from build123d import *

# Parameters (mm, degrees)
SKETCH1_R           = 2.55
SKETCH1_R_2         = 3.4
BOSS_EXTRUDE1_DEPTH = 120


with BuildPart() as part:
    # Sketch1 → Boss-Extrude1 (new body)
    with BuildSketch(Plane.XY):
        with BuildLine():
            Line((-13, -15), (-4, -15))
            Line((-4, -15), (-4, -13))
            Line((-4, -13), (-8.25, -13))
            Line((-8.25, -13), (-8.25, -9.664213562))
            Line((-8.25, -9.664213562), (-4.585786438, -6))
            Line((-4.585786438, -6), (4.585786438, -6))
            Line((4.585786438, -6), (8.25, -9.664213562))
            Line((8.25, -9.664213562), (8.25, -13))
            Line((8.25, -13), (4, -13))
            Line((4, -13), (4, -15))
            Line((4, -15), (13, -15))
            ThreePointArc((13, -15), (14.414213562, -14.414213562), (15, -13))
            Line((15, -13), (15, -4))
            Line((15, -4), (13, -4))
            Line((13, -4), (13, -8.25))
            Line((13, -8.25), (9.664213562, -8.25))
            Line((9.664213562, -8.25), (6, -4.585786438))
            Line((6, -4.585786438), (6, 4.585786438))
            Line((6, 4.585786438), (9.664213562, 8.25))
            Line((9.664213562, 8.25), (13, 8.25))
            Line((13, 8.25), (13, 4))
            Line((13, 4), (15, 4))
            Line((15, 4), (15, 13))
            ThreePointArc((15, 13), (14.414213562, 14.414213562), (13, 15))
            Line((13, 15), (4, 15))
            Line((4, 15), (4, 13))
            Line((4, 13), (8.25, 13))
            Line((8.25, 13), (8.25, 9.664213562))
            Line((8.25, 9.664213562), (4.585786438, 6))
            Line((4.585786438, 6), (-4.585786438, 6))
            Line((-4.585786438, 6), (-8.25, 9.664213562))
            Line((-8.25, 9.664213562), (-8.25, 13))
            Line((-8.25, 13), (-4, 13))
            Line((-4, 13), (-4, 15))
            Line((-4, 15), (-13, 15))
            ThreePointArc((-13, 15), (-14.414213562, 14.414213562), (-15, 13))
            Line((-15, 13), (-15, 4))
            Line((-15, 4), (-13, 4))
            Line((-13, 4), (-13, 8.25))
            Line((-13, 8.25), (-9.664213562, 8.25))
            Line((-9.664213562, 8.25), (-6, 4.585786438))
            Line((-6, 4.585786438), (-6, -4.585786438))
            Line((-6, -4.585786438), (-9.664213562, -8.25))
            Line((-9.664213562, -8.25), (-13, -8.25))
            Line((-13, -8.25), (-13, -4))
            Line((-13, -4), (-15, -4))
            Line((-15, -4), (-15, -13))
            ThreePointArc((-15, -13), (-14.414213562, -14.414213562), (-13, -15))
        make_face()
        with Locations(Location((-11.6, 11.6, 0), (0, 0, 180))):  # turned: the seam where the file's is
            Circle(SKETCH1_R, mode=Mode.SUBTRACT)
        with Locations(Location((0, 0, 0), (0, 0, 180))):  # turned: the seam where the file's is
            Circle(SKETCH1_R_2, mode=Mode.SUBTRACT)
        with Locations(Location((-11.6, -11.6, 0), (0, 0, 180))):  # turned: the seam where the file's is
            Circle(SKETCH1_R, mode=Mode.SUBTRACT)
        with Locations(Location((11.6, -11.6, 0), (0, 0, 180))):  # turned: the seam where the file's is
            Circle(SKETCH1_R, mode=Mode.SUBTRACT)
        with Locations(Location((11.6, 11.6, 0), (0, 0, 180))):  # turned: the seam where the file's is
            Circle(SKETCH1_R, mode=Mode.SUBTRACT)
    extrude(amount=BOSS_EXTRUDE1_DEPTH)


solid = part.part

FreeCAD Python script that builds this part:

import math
import FreeCAD as App
import Part
import Sketcher

doc = App.newDocument("Part")
body = doc.addObject("PartDesign::Body", "Body")

sketch1 = doc.addObject("Sketcher::SketchObject", "Sketch")
body.addObject(sketch1)
sketch1.AttachmentSupport = (doc.XY_Plane, [""])
sketch1.MapMode = "FlatFace"
sketch1.addGeometry(Part.LineSegment(App.Vector(-13, -15, 0), App.Vector(-4, -15, 0)), False)
sketch1.addGeometry(Part.LineSegment(App.Vector(-4, -15, 0), App.Vector(-4, -13, 0)), False)
sketch1.addGeometry(Part.LineSegment(App.Vector(-4, -13, 0), App.Vector(-8.2, -13, 0)), False)
sketch1.addGeometry(Part.LineSegment(App.Vector(-8.2, -13, 0), App.Vector(-8.2, -9.7, 0)), False)
sketch1.addGeometry(Part.LineSegment(App.Vector(-8.2, -9.7, 0), App.Vector(-4.6, -6, 0)), False)
sketch1.addGeometry(Part.LineSegment(App.Vector(-4.6, -6, 0), App.Vector(4.6, -6, 0)), False)
sketch1.addGeometry(Part.LineSegment(App.Vector(4.6, -6, 0), App.Vector(8.2, -9.7, 0)), False)
sketch1.addGeometry(Part.LineSegment(App.Vector(8.2, -9.7, 0), App.Vector(8.2, -13, 0)), False)
sketch1.addGeometry(Part.LineSegment(App.Vector(8.2, -13, 0), App.Vector(4, -13, 0)), False)
sketch1.addGeometry(Part.LineSegment(App.Vector(4, -13, 0), App.Vector(4, -15, 0)), False)
sketch1.addGeometry(Part.LineSegment(App.Vector(4, -15, 0), App.Vector(13, -15, 0)), False)
sketch1.addGeometry(Part.ArcOfCircle(Part.Circle(App.Vector(13, -13, 0), App.Vector(0, 0, 1), 2), math.radians(-90), math.radians(0)), False)
sketch1.addGeometry(Part.LineSegment(App.Vector(15, -13, 0), App.Vector(15, -4, 0)), False)
sketch1.addGeometry(Part.LineSegment(App.Vector(15, -4, 0), App.Vector(13, -4, 0)), False)
sketch1.addGeometry(Part.LineSegment(App.Vector(13, -4, 0), App.Vector(13, -8.2, 0)), False)
sketch1.addGeometry(Part.LineSegment(App.Vector(13, -8.2, 0), App.Vector(9.7, -8.2, 0)), False)
sketch1.addGeometry(Part.LineSegment(App.Vector(9.7, -8.2, 0), App.Vector(6, -4.6, 0)), False)
sketch1.addGeometry(Part.LineSegment(App.Vector(6, -4.6, 0), App.Vector(6, 4.6, 0)), False)
sketch1.addGeometry(Part.LineSegment(App.Vector(6, 4.6, 0), App.Vector(9.7, 8.2, 0)), False)
sketch1.addGeometry(Part.LineSegment(App.Vector(9.7, 8.2, 0), App.Vector(13, 8.2, 0)), False)
sketch1.addGeometry(Part.LineSegment(App.Vector(13, 8.2, 0), App.Vector(13, 4, 0)), False)
sketch1.addGeometry(Part.LineSegment(App.Vector(13, 4, 0), App.Vector(15, 4, 0)), False)
sketch1.addGeometry(Part.LineSegment(App.Vector(15, 4, 0), App.Vector(15, 13, 0)), False)
sketch1.addGeometry(Part.ArcOfCircle(Part.Circle(App.Vector(13, 13, 0), App.Vector(0, 0, 1), 2), math.radians(0), math.radians(90)), False)
sketch1.addGeometry(Part.LineSegment(App.Vector(13, 15, 0), App.Vector(4, 15, 0)), False)
sketch1.addGeometry(Part.LineSegment(App.Vector(4, 15, 0), App.Vector(4, 13, 0)), False)
sketch1.addGeometry(Part.LineSegment(App.Vector(4, 13, 0), App.Vector(8.2, 13, 0)), False)
sketch1.addGeometry(Part.LineSegment(App.Vector(8.2, 13, 0), App.Vector(8.2, 9.7, 0)), False)
sketch1.addGeometry(Part.LineSegment(App.Vector(8.2, 9.7, 0), App.Vector(4.6, 6, 0)), False)
sketch1.addGeometry(Part.LineSegment(App.Vector(4.6, 6, 0), App.Vector(-4.6, 6, 0)), False)
sketch1.addGeometry(Part.LineSegment(App.Vector(-4.6, 6, 0), App.Vector(-8.2, 9.7, 0)), False)
sketch1.addGeometry(Part.LineSegment(App.Vector(-8.2, 9.7, 0), App.Vector(-8.2, 13, 0)), False)
sketch1.addGeometry(Part.LineSegment(App.Vector(-8.2, 13, 0), App.Vector(-4, 13, 0)), False)
sketch1.addGeometry(Part.LineSegment(App.Vector(-4, 13, 0), App.Vector(-4, 15, 0)), False)
sketch1.addGeometry(Part.LineSegment(App.Vector(-4, 15, 0), App.Vector(-13, 15, 0)), False)
sketch1.addGeometry(Part.ArcOfCircle(Part.Circle(App.Vector(-13, 13, 0), App.Vector(0, 0, 1), 2), math.radians(90), math.radians(180)), False)
sketch1.addGeometry(Part.LineSegment(App.Vector(-15, 13, 0), App.Vector(-15, 4, 0)), False)
sketch1.addGeometry(Part.LineSegment(App.Vector(-15, 4, 0), App.Vector(-13, 4, 0)), False)
sketch1.addGeometry(Part.LineSegment(App.Vector(-13, 4, 0), App.Vector(-13, 8.2, 0)), False)
sketch1.addGeometry(Part.LineSegment(App.Vector(-13, 8.2, 0), App.Vector(-9.7, 8.2, 0)), False)
sketch1.addGeometry(Part.LineSegment(App.Vector(-9.7, 8.2, 0), App.Vector(-6, 4.6, 0)), False)
sketch1.addGeometry(Part.LineSegment(App.Vector(-6, 4.6, 0), App.Vector(-6, -4.6, 0)), False)
sketch1.addGeometry(Part.LineSegment(App.Vector(-6, -4.6, 0), App.Vector(-9.7, -8.2, 0)), False)
sketch1.addGeometry(Part.LineSegment(App.Vector(-9.7, -8.2, 0), App.Vector(-13, -8.2, 0)), False)
sketch1.addGeometry(Part.LineSegment(App.Vector(-13, -8.2, 0), App.Vector(-13, -4, 0)), False)
sketch1.addGeometry(Part.LineSegment(App.Vector(-13, -4, 0), App.Vector(-15, -4, 0)), False)
sketch1.addGeometry(Part.LineSegment(App.Vector(-15, -4, 0), App.Vector(-15, -13, 0)), False)
sketch1.addGeometry(Part.ArcOfCircle(Part.Circle(App.Vector(-13, -13, 0), App.Vector(0, 0, 1), 2), math.radians(-180), math.radians(-90)), False)
sketch1.addGeometry(Part.Circle(App.Vector(-11.6, -11.6, 0), App.Vector(0, 0, 1), 2.5), False)
sketch1.addGeometry(Part.Circle(App.Vector(0, 0, 0), App.Vector(0, 0, 1), 3.4), False)
sketch1.addGeometry(Part.Circle(App.Vector(11.6, -11.6, 0), App.Vector(0, 0, 1), 2.5), False)
sketch1.addGeometry(Part.Circle(App.Vector(-11.6, 11.6, 0), App.Vector(0, 0, 1), 2.5), False)
sketch1.addGeometry(Part.Circle(App.Vector(11.6, 11.6, 0), App.Vector(0, 0, 1), 2.5), False)
sketch1.addConstraint(Sketcher.Constraint("Coincident", 0, 2, 1, 1))
sketch1.addConstraint(Sketcher.Constraint("Coincident", 1, 2, 2, 1))
sketch1.addConstraint(Sketcher.Constraint("Coincident", 2, 2, 3, 1))
sketch1.addConstraint(Sketcher.Constraint("Coincident", 3, 2, 4, 1))
sketch1.addConstraint(Sketcher.Constraint("Coincident", 4, 2, 5, 1))
sketch1.addConstraint(Sketcher.Constraint("Coincident", 5, 2, 6, 1))
sketch1.addConstraint(Sketcher.Constraint("Coincident", 6, 2, 7, 1))
sketch1.addConstraint(Sketcher.Constraint("Coincident", 7, 2, 8, 1))
sketch1.addConstraint(Sketcher.Constraint("Coincident", 8, 2, 9, 1))
sketch1.addConstraint(Sketcher.Constraint("Coincident", 9, 2, 10, 1))
sketch1.addConstraint(Sketcher.Constraint("Tangent", 10, 2, 11, 1))
sketch1.addConstraint(Sketcher.Constraint("Tangent", 11, 2, 12, 1))
sketch1.addConstraint(Sketcher.Constraint("Coincident", 12, 2, 13, 1))
sketch1.addConstraint(Sketcher.Constraint("Coincident", 13, 2, 14, 1))
sketch1.addConstraint(Sketcher.Constraint("Coincident", 14, 2, 15, 1))
sketch1.addConstraint(Sketcher.Constraint("Coincident", 15, 2, 16, 1))
sketch1.addConstraint(Sketcher.Constraint("Coincident", 16, 2, 17, 1))
sketch1.addConstraint(Sketcher.Constraint("Coincident", 17, 2, 18, 1))
sketch1.addConstraint(Sketcher.Constraint("Coincident", 18, 2, 19, 1))
sketch1.addConstraint(Sketcher.Constraint("Coincident", 19, 2, 20, 1))
sketch1.addConstraint(Sketcher.Constraint("Coincident", 20, 2, 21, 1))
sketch1.addConstraint(Sketcher.Constraint("Coincident", 21, 2, 22, 1))
sketch1.addConstraint(Sketcher.Constraint("Tangent", 22, 2, 23, 1))
sketch1.addConstraint(Sketcher.Constraint("Tangent", 23, 2, 24, 1))
sketch1.addConstraint(Sketcher.Constraint("Coincident", 24, 2, 25, 1))
sketch1.addConstraint(Sketcher.Constraint("Coincident", 25, 2, 26, 1))
sketch1.addConstraint(Sketcher.Constraint("Coincident", 26, 2, 27, 1))
sketch1.addConstraint(Sketcher.Constraint("Coincident", 27, 2, 28, 1))
sketch1.addConstraint(Sketcher.Constraint("Coincident", 28, 2, 29, 1))
sketch1.addConstraint(Sketcher.Constraint("Coincident", 29, 2, 30, 1))
sketch1.addConstraint(Sketcher.Constraint("Coincident", 30, 2, 31, 1))
sketch1.addConstraint(Sketcher.Constraint("Coincident", 31, 2, 32, 1))
sketch1.addConstraint(Sketcher.Constraint("Coincident", 32, 2, 33, 1))
sketch1.addConstraint(Sketcher.Constraint("Coincident", 33, 2, 34, 1))
sketch1.addConstraint(Sketcher.Constraint("Tangent", 34, 2, 35, 1))
sketch1.addConstraint(Sketcher.Constraint("Tangent", 35, 2, 36, 1))
sketch1.addConstraint(Sketcher.Constraint("Coincident", 36, 2, 37, 1))
sketch1.addConstraint(Sketcher.Constraint("Coincident", 37, 2, 38, 1))
sketch1.addConstraint(Sketcher.Constraint("Coincident", 38, 2, 39, 1))
sketch1.addConstraint(Sketcher.Constraint("Coincident", 39, 2, 40, 1))
sketch1.addConstraint(Sketcher.Constraint("Coincident", 40, 2, 41, 1))
sketch1.addConstraint(Sketcher.Constraint("Coincident", 41, 2, 42, 1))
sketch1.addConstraint(Sketcher.Constraint("Coincident", 42, 2, 43, 1))
sketch1.addConstraint(Sketcher.Constraint("Coincident", 43, 2, 44, 1))
sketch1.addConstraint(Sketcher.Constraint("Coincident", 44, 2, 45, 1))
sketch1.addConstraint(Sketcher.Constraint("Coincident", 45, 2, 46, 1))
sketch1.addConstraint(Sketcher.Constraint("Tangent", 46, 2, 47, 1))
sketch1.addConstraint(Sketcher.Constraint("Tangent", 47, 2, 0, 1))
sketch1.addConstraint(Sketcher.Constraint("Horizontal", 0))
sketch1.addConstraint(Sketcher.Constraint("Vertical", 1))
sketch1.addConstraint(Sketcher.Constraint("Horizontal", 2))
sketch1.addConstraint(Sketcher.Constraint("Vertical", 3))
sketch1.addConstraint(Sketcher.Constraint("Horizontal", 5))
sketch1.addConstraint(Sketcher.Constraint("Vertical", 7))
sketch1.addConstraint(Sketcher.Constraint("Horizontal", 8))
sketch1.addConstraint(Sketcher.Constraint("Vertical", 9))
sketch1.addConstraint(Sketcher.Constraint("Horizontal", 10))
sketch1.addConstraint(Sketcher.Constraint("Vertical", 12))
sketch1.addConstraint(Sketcher.Constraint("Horizontal", 13))
sketch1.addConstraint(Sketcher.Constraint("Vertical", 14))
sketch1.addConstraint(Sketcher.Constraint("Horizontal", 15))
sketch1.addConstraint(Sketcher.Constraint("Vertical", 17))
sketch1.addConstraint(Sketcher.Constraint("Horizontal", 19))
sketch1.addConstraint(Sketcher.Constraint("Vertical", 20))
sketch1.addConstraint(Sketcher.Constraint("Horizontal", 21))
sketch1.addConstraint(Sketcher.Constraint("Vertical", 22))
sketch1.addConstraint(Sketcher.Constraint("Horizontal", 24))
sketch1.addConstraint(Sketcher.Constraint("Vertical", 25))
sketch1.addConstraint(Sketcher.Constraint("Horizontal", 26))
sketch1.addConstraint(Sketcher.Constraint("Vertical", 27))
sketch1.addConstraint(Sketcher.Constraint("Horizontal", 29))
sketch1.addConstraint(Sketcher.Constraint("Vertical", 31))
sketch1.addConstraint(Sketcher.Constraint("Horizontal", 32))
sketch1.addConstraint(Sketcher.Constraint("Vertical", 33))
sketch1.addConstraint(Sketcher.Constraint("Horizontal", 34))
sketch1.addConstraint(Sketcher.Constraint("Vertical", 36))
sketch1.addConstraint(Sketcher.Constraint("Horizontal", 37))
sketch1.addConstraint(Sketcher.Constraint("Vertical", 38))
sketch1.addConstraint(Sketcher.Constraint("Horizontal", 39))
sketch1.addConstraint(Sketcher.Constraint("Vertical", 41))
sketch1.addConstraint(Sketcher.Constraint("Horizontal", 43))
sketch1.addConstraint(Sketcher.Constraint("Vertical", 44))
sketch1.addConstraint(Sketcher.Constraint("Horizontal", 45))
sketch1.addConstraint(Sketcher.Constraint("Vertical", 46))
sketch1.addConstraint(Sketcher.Constraint("Coincident", 49, 3, -1, 1))
sketch1.addConstraint(Sketcher.Constraint("Equal", 11, 23))
sketch1.addConstraint(Sketcher.Constraint("Equal", 23, 35))
sketch1.addConstraint(Sketcher.Constraint("Equal", 35, 47))
sketch1.addConstraint(Sketcher.Constraint("Equal", 48, 50))
sketch1.addConstraint(Sketcher.Constraint("Equal", 50, 51))
sketch1.addConstraint(Sketcher.Constraint("Equal", 51, 52))
sketch1.addConstraint(Sketcher.Constraint("Symmetric", 11, 3, 35, 3, -1, 1))
sketch1.addConstraint(Sketcher.Constraint("Symmetric", 23, 3, 47, 3, -1, 1))
sketch1.addConstraint(Sketcher.Constraint("Symmetric", 50, 3, 51, 3, -1, 1))
sketch1.addConstraint(Sketcher.Constraint("Symmetric", 48, 3, 52, 3, -1, 1))
sketch1.addConstraint(Sketcher.Constraint("Symmetric", 1, 2, 25, 2, -1, 1))
sketch1.addConstraint(Sketcher.Constraint("Symmetric", 3, 2, 27, 2, -1, 1))
sketch1.addConstraint(Sketcher.Constraint("Symmetric", 4, 2, 28, 2, -1, 1))
sketch1.addConstraint(Sketcher.Constraint("Symmetric", 6, 2, 30, 2, -1, 1))
sketch1.addConstraint(Sketcher.Constraint("Symmetric", 8, 2, 32, 2, -1, 1))
sketch1.addConstraint(Sketcher.Constraint("Symmetric", 13, 2, 37, 2, -1, 1))
sketch1.addConstraint(Sketcher.Constraint("Symmetric", 15, 2, 39, 2, -1, 1))
sketch1.addConstraint(Sketcher.Constraint("Symmetric", 16, 2, 40, 2, -1, 1))
sketch1.addConstraint(Sketcher.Constraint("Symmetric", 18, 2, 42, 2, -1, 1))
sketch1.addConstraint(Sketcher.Constraint("Symmetric", 20, 2, 44, 2, -1, 1))
sketch1.addConstraint(Sketcher.Constraint("Symmetric", 23, 3, 35, 3, -2))
sketch1.addConstraint(Sketcher.Constraint("Symmetric", 48, 3, 50, 3, -2))
sketch1.addConstraint(Sketcher.Constraint("Symmetric", 3, 2, 6, 2, -2))
sketch1.addConstraint(Sketcher.Constraint("Symmetric", 1, 2, 8, 2, -2))
sketch1.addConstraint(Sketcher.Constraint("Symmetric", 20, 2, 37, 2, -2))
sketch1.addConstraint(Sketcher.Constraint("Symmetric", 18, 2, 39, 2, -2))
sketch1.addConstraint(Sketcher.Constraint("Perpendicular", 4, 6))
sketch1.addConstraint(Sketcher.Constraint("Parallel", 6, 16))
sketch1.addConstraint(Sketcher.Constraint("Perpendicular", 16, 18))
sketch1.addConstraint(Sketcher.Constraint("Perpendicular", 28, 30))
sketch1.addConstraint(Sketcher.Constraint("Perpendicular", 40, 42))
sketch1.addConstraint(Sketcher.Constraint("Horizontal", 47, 3, 1, 2))
sketch1.addConstraint(Sketcher.Constraint("Horizontal", 17, 2, 40, 2))
sketch1.addConstraint(Sketcher.Constraint("Vertical", 10, 2, 13, 2))
sketch1.addConstraint(Sketcher.Constraint("Equal", 43, 3))
sketch1.addConstraint(Sketcher.Constraint("Equal", 34, 12))
sketch1.addConstraint(Sketcher.Constraint("Equal", 32, 14))
sketch1.addConstraint(Sketcher.Constraint("Equal", 29, 17))
sketch1.addConstraint(Sketcher.Constraint("Equal", 6, 16))
sketch1.addConstraint(Sketcher.Constraint("Radius", 11, 2.0))
sketch1.addConstraint(Sketcher.Constraint("Diameter", 48, 5.1))
sketch1.addConstraint(Sketcher.Constraint("Diameter", 49, 6.8))
sketch1.addConstraint(Sketcher.Constraint("DistanceX", 0, 1, 0, 2, 9.0))
sketch1.addConstraint(Sketcher.Constraint("DistanceX", -1, 1, 11, 3, 13.0))
sketch1.addConstraint(Sketcher.Constraint("DistanceY", 4, 2, -1, 1, 6.0))
sketch1.addConstraint(Sketcher.Constraint("DistanceX", 2, 2, 2, 1, 4.25))
sketch1.addConstraint(Sketcher.Constraint("DistanceX", 48, 3, -1, 1, 11.6))
sketch1.addConstraint(Sketcher.Constraint("DistanceY", 48, 3, -1, 1, 11.6))
sketch1.addConstraint(Sketcher.Constraint("Distance", 4, 5.181981))
pad1 = doc.addObject("PartDesign::Pad", "Pad")
body.addObject(pad1)
pad1.Profile = sketch1
pad1.Length = 120

doc.recompute()
